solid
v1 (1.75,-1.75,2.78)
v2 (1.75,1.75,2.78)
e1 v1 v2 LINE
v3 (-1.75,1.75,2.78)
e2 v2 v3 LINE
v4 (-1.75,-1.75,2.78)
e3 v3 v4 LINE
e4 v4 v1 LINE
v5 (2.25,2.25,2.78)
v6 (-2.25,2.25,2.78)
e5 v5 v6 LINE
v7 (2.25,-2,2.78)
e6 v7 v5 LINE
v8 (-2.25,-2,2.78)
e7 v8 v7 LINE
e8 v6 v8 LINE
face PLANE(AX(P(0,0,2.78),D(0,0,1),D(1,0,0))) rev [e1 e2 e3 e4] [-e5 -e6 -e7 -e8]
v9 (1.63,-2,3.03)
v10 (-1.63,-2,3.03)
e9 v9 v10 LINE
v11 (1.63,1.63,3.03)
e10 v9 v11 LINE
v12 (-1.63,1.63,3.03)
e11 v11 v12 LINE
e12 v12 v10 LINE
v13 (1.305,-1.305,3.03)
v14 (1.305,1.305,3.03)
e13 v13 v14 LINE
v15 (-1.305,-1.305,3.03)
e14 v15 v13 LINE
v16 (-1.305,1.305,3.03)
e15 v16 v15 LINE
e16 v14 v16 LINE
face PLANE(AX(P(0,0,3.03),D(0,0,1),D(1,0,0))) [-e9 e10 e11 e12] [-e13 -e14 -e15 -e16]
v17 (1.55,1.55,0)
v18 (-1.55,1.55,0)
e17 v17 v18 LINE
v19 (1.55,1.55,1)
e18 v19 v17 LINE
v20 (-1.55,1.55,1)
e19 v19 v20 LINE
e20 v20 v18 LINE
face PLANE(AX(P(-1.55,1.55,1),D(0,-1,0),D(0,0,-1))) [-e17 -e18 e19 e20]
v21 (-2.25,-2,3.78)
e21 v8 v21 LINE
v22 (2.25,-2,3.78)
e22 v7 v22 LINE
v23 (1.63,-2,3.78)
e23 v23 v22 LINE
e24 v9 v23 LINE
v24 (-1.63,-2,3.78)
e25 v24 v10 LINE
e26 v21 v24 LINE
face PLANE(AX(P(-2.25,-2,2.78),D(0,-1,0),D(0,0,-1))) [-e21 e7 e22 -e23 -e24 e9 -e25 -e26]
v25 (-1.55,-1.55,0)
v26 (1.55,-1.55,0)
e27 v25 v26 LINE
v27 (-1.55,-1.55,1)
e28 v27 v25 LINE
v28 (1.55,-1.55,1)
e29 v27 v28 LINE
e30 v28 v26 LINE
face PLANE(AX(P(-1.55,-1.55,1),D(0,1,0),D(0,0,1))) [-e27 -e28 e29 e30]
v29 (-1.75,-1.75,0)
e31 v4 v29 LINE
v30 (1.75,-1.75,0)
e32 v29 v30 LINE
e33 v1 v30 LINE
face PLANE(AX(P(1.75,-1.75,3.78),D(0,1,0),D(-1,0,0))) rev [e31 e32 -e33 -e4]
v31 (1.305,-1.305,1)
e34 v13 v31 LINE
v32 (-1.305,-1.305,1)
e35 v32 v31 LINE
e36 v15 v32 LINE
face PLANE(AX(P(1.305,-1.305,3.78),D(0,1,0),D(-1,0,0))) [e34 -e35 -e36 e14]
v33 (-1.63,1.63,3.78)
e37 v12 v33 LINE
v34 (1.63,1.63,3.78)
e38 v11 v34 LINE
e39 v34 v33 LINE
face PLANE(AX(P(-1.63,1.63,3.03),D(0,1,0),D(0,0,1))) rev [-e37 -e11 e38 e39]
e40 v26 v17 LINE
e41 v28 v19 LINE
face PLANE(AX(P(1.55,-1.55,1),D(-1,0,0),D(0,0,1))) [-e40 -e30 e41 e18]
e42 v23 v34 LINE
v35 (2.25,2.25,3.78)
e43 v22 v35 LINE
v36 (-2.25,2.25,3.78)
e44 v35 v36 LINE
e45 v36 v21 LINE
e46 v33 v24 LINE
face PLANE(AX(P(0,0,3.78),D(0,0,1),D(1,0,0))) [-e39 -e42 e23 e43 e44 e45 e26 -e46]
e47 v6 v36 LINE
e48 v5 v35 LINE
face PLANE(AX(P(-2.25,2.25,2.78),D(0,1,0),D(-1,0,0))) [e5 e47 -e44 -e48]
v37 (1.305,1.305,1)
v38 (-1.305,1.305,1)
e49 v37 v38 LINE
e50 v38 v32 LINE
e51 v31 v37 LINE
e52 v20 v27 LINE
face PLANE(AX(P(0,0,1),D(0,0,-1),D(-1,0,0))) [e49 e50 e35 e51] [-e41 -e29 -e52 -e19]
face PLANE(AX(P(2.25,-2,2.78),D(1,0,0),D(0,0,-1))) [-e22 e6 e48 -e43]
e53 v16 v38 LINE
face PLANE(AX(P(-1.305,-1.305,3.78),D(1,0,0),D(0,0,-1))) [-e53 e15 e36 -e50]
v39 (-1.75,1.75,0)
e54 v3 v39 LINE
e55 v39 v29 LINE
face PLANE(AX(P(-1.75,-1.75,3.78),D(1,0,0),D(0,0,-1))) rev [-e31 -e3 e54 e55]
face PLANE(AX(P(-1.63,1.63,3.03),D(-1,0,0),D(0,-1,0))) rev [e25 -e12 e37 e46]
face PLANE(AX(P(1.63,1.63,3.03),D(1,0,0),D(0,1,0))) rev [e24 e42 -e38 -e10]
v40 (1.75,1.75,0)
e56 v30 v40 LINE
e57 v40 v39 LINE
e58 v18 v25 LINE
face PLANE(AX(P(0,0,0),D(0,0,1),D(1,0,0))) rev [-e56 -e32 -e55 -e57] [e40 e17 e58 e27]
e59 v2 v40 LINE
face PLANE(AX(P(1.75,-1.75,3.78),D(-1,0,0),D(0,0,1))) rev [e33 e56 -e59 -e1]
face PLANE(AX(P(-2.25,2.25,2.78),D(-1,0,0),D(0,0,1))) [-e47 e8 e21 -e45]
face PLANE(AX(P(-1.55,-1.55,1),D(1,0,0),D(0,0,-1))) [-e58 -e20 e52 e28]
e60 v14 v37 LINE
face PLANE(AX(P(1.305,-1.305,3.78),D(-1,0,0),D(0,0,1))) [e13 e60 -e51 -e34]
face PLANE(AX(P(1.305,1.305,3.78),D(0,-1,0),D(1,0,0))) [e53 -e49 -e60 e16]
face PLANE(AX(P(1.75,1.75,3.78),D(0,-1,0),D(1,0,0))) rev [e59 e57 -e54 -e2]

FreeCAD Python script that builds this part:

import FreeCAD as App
import Part
import Sketcher
from FreeCAD import Vector


def add_polygon(sketch, points):
    """Adds a closed chain of lines whose ends are joined by coincident constraints."""
    first, n = sketch.GeometryCount, len(points)
    for a, b in zip(points, points[1:] + points[:1]):
        sketch.addGeometry(Part.LineSegment(App.Vector(*a, 0), App.Vector(*b, 0)), False)
    for i in range(n):
        sketch.addConstraint(Sketcher.Constraint("Coincident", first + i, 2, first + (i + 1) % n, 1))

doc = App.newDocument("Part")
body = doc.addObject("PartDesign::Body", "Body")

sketch1 = body.newObject("Sketcher::SketchObject", "Sketch")
sketch1.AttachmentSupport = (doc.getObject("XY_Plane"), [""])
sketch1.MapMode = "FlatFace"
add_polygon(sketch1, [(-1.75, 1.75), (-1.75, -1.75), (1.75, -1.75), (1.75, 1.75)])
add_polygon(sketch1, [(1.305, -1.305), (-1.305, -1.305), (-1.305, 1.305), (1.305, 1.305)])
sketch1.addConstraint(Sketcher.Constraint("Vertical", 0))
sketch1.addConstraint(Sketcher.Constraint("Horizontal", 1))
sketch1.addConstraint(Sketcher.Constraint("Vertical", 2))
sketch1.addConstraint(Sketcher.Constraint("Horizontal", 3))
sketch1.addConstraint(Sketcher.Constraint("Horizontal", 4))
sketch1.addConstraint(Sketcher.Constraint("Vertical", 5))
sketch1.addConstraint(Sketcher.Constraint("Horizontal", 6))
sketch1.addConstraint(Sketcher.Constraint("Vertical", 7))
sketch1.addConstraint(Sketcher.Constraint("Symmetric", 0, 2, 2, 2, -1, 1))
sketch1.addConstraint(Sketcher.Constraint("Symmetric", 4, 2, 6, 2, -1, 1))
sketch1.addConstraint(Sketcher.Constraint("Equal", 3, 0))
sketch1.addConstraint(Sketcher.Constraint("Equal", 6, 5))
sketch1.addConstraint(Sketcher.Constraint("DistanceX", 1, 1, 1, 2, 3.5))
sketch1.addConstraint(Sketcher.Constraint("DistanceX", 4, 2, 4, 1, 2.61))
pad1 = body.newObject("PartDesign::Pad", "Pad")
pad1.Profile = sketch1
pad1.Length = 3.78

sketch2 = body.newObject("Sketcher::SketchObject", "Sketch001")
sketch2.AttachmentSupport = (doc.getObject("XY_Plane"), [""])
sketch2.MapMode = "FlatFace"
add_polygon(sketch2, [(-1.55, 1.55), (-1.55, -1.55), (1.55, -1.55), (1.55, 1.55)])
add_polygon(sketch2, [(1.305, -1.305), (-1.305, -1.305), (-1.305, 1.305), (1.305, 1.305)])
sketch2.addConstraint(Sketcher.Constraint("Vertical", 0))
sketch2.addConstraint(Sketcher.Constraint("Horizontal", 1))
sketch2.addConstraint(Sketcher.Constraint("Vertical", 2))
sketch2.addConstraint(Sketcher.Constraint("Horizontal", 3))
sketch2.addConstraint(Sketcher.Constraint("Horizontal", 4))
sketch2.addConstraint(Sketcher.Constraint("Vertical", 5))
sketch2.addConstraint(Sketcher.Constraint("Horizontal", 6))
sketch2.addConstraint(Sketcher.Constraint("Vertical", 7))
sketch2.addConstraint(Sketcher.Constraint("Symmetric", 0, 2, 2, 2, -1, 1))
sketch2.addConstraint(Sketcher.Constraint("Symmetric", 4, 2, 6, 2, -1, 1))
sketch2.addConstraint(Sketcher.Constraint("Equal", 3, 0))
sketch2.addConstraint(Sketcher.Constraint("Equal", 6, 5))
sketch2.addConstraint(Sketcher.Constraint("DistanceX", 1, 1, 1, 2, 3.1))
sketch2.addConstraint(Sketcher.Constraint("DistanceX", 4, 2, 4, 1, 2.61))
pocket1 = body.newObject("PartDesign::Pocket", "Pocket")
pocket1.Profile = sketch2
pocket1.Length = 1
pocket1.Reversed = True

sketch3 = body.newObject("Sketcher::SketchObject", "Sketch002")
sketch3.AttachmentSupport = (doc.getObject("XY_Plane"), [""])
sketch3.MapMode = "FlatFace"
sketch3.AttachmentOffset = App.Placement(Vector(0, 0, 3.78), App.Rotation())
add_polygon(sketch3, [(-2.25, 2.25), (-2.25, -2), (2.25, -2), (2.25, 2.25)])
add_polygon(sketch3, [(1.75, -1.75), (-1.75, -1.75), (-1.75, 1.75), (1.75, 1.75)])
sketch3.addConstraint(Sketcher.Constraint("Vertical", 0))
sketch3.addConstraint(Sketcher.Constraint("Horizontal", 1))
sketch3.addConstraint(Sketcher.Constraint("Vertical", 2))
sketch3.addConstraint(Sketcher.Constraint("Horizontal", 3))
sketch3.addConstraint(Sketcher.Constraint("Horizontal", 4))
sketch3.addConstraint(Sketcher.Constraint("Vertical", 5))
sketch3.addConstraint(Sketcher.Constraint("Horizontal", 6))
sketch3.addConstraint(Sketcher.Constraint("Vertical", 7))
sketch3.addConstraint(Sketcher.Constraint("Symmetric", 4, 2, 6, 2, -1, 1))
sketch3.addConstraint(Sketcher.Constraint("Equal", 6, 5))
sketch3.addConstraint(Sketcher.Constraint("DistanceX", 1, 1, 1, 2, 4.5))
sketch3.addConstraint(Sketcher.Constraint("DistanceX", 4, 2, 4, 1, 3.5))
sketch3.addConstraint(Sketcher.Constraint("DistanceY", 0, 2, -1, 1, 2.0))
sketch3.addConstraint(Sketcher.Constraint("DistanceX", 4, 2, 1, 2, 4.0))
sketch3.addConstraint(Sketcher.Constraint("DistanceY", 4, 2, 3, 2, 4.0))
pad2 = body.newObject("PartDesign::Pad", "Pad001")
pad2.Profile = sketch3
pad2.Length = 1
pad2.Reversed = True

sketch4 = body.newObject("Sketcher::SketchObject", "Sketch003")
sketch4.AttachmentSupport = (doc.getObject("XY_Plane"), [""])
sketch4.MapMode = "FlatFace"
sketch4.AttachmentOffset = App.Placement(Vector(0, 0, 3.78), App.Rotation())
add_polygon(sketch4, [(-1.63, 1.63), (-1.63, -4.373564), (1.63, -4.373564), (1.63, 1.63)])
sketch4.addConstraint(Sketcher.Constraint("Vertical", 0))
sketch4.addConstraint(Sketcher.Constraint("Horizontal", 1))
sketch4.addConstraint(Sketcher.Constraint("Vertical", 2))
sketch4.addConstraint(Sketcher.Constraint("Horizontal", 3))
sketch4.addConstraint(Sketcher.Constraint("DistanceX", 1, 1, 1, 2, 3.26))
sketch4.addConstraint(Sketcher.Constraint("DistanceX", 0, 2, -1, 1, 1.63))
sketch4.addConstraint(Sketcher.Constraint("DistanceY", -1, 1, 2, 2, 1.63))
sketch4.addConstraint(Sketcher.Constraint("DistanceY", 0, 2, 0, 1, 6.003564))
pocket2 = body.newObject("PartDesign::Pocket", "Pocket001")
pocket2.Profile = sketch4
pocket2.Length = 0.75

doc.recompute()
